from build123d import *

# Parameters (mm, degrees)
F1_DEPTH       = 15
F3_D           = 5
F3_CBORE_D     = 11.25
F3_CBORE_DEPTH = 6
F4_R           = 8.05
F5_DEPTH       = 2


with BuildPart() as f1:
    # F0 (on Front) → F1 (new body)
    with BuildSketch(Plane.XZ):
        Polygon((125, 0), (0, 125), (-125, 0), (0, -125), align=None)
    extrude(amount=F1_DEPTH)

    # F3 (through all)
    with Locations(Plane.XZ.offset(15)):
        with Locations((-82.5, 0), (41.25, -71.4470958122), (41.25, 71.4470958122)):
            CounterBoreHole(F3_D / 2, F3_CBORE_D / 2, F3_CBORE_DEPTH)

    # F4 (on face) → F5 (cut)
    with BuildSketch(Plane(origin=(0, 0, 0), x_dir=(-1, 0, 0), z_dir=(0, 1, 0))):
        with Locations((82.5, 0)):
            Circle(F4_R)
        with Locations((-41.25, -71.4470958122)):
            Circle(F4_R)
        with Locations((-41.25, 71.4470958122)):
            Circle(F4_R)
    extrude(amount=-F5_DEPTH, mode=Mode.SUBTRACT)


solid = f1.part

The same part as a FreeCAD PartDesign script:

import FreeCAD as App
import Part
import Sketcher
Q = App.Units.Quantity

doc = App.newDocument("Part")
body = doc.addObject("PartDesign::Body", "Body")

# Sketch on XZ plane
sketch1 = doc.addObject("Sketcher::SketchObject", "Sketch")
body.addObject(sketch1)
sketch1.AttachmentSupport = (doc.XZ_Plane, [""])
sketch1.MapMode = "FlatFace"
sketch1.addGeometry([
    Part.LineSegment(App.Vector(125, 0, 0), App.Vector(0, 125, 0)),
    Part.LineSegment(App.Vector(0, 125, 0), App.Vector(-125, 0, 0)),
    Part.LineSegment(App.Vector(-125, 0, 0), App.Vector(0, -125, 0)),
    Part.LineSegment(App.Vector(0, -125, 0), App.Vector(125, 0, 0)),
], False)
sketch1.addConstraint([
    Sketcher.Constraint("Coincident", 0, 2, 1, 1),
    Sketcher.Constraint("Coincident", 1, 2, 2, 1),
    Sketcher.Constraint("Coincident", 2, 2, 3, 1),
    Sketcher.Constraint("Coincident", 3, 2, 0, 1),
    Sketcher.Constraint("Symmetric", 0, 2, 2, 2, -1, 1),
    Sketcher.Constraint("Symmetric", 1, 2, 3, 2, -1, 1),
    Sketcher.Constraint("PointOnObject", 0, 2, -2),
    Sketcher.Constraint("PointOnObject", 1, 2, -1),
    Sketcher.Constraint("Perpendicular", 0, 1),
    Sketcher.Constraint("DistanceY", -1, 1, 0, 2, Q("125 mm")),
])
pad1 = doc.addObject("PartDesign::Pad", "Pad")
body.addObject(pad1)
pad1.Profile = sketch1
pad1.Length = 15

# Sketch on XZ plane
sketch2 = doc.addObject("Sketcher::SketchObject", "Sketch001")
body.addObject(sketch2)
sketch2.AttachmentSupport = (doc.XZ_Plane, [""])
sketch2.MapMode = "FlatFace"
sketch2.AttachmentOffset = App.Placement(App.Vector(0, 0, 15), App.Rotation())
sketch2.addGeometry([
    Part.Circle(App.Vector(-82.5, 0, 0), App.Vector(0, 0, 1), 2.5),
    Part.Circle(App.Vector(41.2, -71.4, 0), App.Vector(0, 0, 1), 2.5),
    Part.Circle(App.Vector(41.2, 71.4, 0), App.Vector(0, 0, 1), 2.5),
], False)
sketch2.addConstraint([
    Sketcher.Constraint("Equal", 0, 1),
    Sketcher.Constraint("Equal", 1, 2),
    Sketcher.Constraint("Symmetric", 1, 3, 2, 3, -1),
    Sketcher.Constraint("PointOnObject", 0, 3, -1),
    Sketcher.Constraint("Diameter", 0, Q("5 mm")),
    Sketcher.Constraint("DistanceX", 0, 3, -1, 1, Q("82.5 mm")),
    Sketcher.Constraint("DistanceX", -1, 1, 1, 3, Q("41.25 mm")),
    Sketcher.Constraint("DistanceY", 1, 3, 2, 3, Q("142.894192 mm")),
])
doc.recompute()
hole = doc.addObject("PartDesign::Hole", "Hole")
body.addObject(hole)
hole.Profile = sketch2
hole.ThreadType = "None"
hole.Diameter = 5
hole.DepthType = "ThroughAll"
hole.HoleCutType = "Counterbore"
hole.HoleCutDiameter = 11.25
hole.HoleCutDepth = 6

# Sketch on XZ plane
sketch3 = doc.addObject("Sketcher::SketchObject", "Sketch002")
body.addObject(sketch3)
sketch3.AttachmentSupport = (doc.XZ_Plane, [""])
sketch3.MapMode = "FlatFace"
sketch3.addGeometry([
    Part.Circle(App.Vector(-82, 0, 0), App.Vector(0, 0, 1), 8),
    Part.Circle(App.Vector(41, -71, 0), App.Vector(0, 0, 1), 8),
    Part.Circle(App.Vector(41, 71, 0), App.Vector(0, 0, 1), 8),
], False)
sketch3.addConstraint([
    Sketcher.Constraint("Equal", 0, 1),
    Sketcher.Constraint("Equal", 1, 2),
    Sketcher.Constraint("Symmetric", 1, 3, 2, 3, -1),
    Sketcher.Constraint("PointOnObject", 0, 3, -1),
    Sketcher.Constraint("Diameter", 0, Q("16.1 mm")),
    Sketcher.Constraint("DistanceX", 0, 3, -1, 1, Q("82.5 mm")),
    Sketcher.Constraint("DistanceX", -1, 1, 1, 3, Q("41.25 mm")),
    Sketcher.Constraint("DistanceY", 1, 3, 2, 3, Q("142.894192 mm")),
])
pocket1 = doc.addObject("PartDesign::Pocket", "Pocket")
body.addObject(pocket1)
pocket1.Profile = sketch3
pocket1.Length = 2
pocket1.Reversed = True

doc.recompute()
